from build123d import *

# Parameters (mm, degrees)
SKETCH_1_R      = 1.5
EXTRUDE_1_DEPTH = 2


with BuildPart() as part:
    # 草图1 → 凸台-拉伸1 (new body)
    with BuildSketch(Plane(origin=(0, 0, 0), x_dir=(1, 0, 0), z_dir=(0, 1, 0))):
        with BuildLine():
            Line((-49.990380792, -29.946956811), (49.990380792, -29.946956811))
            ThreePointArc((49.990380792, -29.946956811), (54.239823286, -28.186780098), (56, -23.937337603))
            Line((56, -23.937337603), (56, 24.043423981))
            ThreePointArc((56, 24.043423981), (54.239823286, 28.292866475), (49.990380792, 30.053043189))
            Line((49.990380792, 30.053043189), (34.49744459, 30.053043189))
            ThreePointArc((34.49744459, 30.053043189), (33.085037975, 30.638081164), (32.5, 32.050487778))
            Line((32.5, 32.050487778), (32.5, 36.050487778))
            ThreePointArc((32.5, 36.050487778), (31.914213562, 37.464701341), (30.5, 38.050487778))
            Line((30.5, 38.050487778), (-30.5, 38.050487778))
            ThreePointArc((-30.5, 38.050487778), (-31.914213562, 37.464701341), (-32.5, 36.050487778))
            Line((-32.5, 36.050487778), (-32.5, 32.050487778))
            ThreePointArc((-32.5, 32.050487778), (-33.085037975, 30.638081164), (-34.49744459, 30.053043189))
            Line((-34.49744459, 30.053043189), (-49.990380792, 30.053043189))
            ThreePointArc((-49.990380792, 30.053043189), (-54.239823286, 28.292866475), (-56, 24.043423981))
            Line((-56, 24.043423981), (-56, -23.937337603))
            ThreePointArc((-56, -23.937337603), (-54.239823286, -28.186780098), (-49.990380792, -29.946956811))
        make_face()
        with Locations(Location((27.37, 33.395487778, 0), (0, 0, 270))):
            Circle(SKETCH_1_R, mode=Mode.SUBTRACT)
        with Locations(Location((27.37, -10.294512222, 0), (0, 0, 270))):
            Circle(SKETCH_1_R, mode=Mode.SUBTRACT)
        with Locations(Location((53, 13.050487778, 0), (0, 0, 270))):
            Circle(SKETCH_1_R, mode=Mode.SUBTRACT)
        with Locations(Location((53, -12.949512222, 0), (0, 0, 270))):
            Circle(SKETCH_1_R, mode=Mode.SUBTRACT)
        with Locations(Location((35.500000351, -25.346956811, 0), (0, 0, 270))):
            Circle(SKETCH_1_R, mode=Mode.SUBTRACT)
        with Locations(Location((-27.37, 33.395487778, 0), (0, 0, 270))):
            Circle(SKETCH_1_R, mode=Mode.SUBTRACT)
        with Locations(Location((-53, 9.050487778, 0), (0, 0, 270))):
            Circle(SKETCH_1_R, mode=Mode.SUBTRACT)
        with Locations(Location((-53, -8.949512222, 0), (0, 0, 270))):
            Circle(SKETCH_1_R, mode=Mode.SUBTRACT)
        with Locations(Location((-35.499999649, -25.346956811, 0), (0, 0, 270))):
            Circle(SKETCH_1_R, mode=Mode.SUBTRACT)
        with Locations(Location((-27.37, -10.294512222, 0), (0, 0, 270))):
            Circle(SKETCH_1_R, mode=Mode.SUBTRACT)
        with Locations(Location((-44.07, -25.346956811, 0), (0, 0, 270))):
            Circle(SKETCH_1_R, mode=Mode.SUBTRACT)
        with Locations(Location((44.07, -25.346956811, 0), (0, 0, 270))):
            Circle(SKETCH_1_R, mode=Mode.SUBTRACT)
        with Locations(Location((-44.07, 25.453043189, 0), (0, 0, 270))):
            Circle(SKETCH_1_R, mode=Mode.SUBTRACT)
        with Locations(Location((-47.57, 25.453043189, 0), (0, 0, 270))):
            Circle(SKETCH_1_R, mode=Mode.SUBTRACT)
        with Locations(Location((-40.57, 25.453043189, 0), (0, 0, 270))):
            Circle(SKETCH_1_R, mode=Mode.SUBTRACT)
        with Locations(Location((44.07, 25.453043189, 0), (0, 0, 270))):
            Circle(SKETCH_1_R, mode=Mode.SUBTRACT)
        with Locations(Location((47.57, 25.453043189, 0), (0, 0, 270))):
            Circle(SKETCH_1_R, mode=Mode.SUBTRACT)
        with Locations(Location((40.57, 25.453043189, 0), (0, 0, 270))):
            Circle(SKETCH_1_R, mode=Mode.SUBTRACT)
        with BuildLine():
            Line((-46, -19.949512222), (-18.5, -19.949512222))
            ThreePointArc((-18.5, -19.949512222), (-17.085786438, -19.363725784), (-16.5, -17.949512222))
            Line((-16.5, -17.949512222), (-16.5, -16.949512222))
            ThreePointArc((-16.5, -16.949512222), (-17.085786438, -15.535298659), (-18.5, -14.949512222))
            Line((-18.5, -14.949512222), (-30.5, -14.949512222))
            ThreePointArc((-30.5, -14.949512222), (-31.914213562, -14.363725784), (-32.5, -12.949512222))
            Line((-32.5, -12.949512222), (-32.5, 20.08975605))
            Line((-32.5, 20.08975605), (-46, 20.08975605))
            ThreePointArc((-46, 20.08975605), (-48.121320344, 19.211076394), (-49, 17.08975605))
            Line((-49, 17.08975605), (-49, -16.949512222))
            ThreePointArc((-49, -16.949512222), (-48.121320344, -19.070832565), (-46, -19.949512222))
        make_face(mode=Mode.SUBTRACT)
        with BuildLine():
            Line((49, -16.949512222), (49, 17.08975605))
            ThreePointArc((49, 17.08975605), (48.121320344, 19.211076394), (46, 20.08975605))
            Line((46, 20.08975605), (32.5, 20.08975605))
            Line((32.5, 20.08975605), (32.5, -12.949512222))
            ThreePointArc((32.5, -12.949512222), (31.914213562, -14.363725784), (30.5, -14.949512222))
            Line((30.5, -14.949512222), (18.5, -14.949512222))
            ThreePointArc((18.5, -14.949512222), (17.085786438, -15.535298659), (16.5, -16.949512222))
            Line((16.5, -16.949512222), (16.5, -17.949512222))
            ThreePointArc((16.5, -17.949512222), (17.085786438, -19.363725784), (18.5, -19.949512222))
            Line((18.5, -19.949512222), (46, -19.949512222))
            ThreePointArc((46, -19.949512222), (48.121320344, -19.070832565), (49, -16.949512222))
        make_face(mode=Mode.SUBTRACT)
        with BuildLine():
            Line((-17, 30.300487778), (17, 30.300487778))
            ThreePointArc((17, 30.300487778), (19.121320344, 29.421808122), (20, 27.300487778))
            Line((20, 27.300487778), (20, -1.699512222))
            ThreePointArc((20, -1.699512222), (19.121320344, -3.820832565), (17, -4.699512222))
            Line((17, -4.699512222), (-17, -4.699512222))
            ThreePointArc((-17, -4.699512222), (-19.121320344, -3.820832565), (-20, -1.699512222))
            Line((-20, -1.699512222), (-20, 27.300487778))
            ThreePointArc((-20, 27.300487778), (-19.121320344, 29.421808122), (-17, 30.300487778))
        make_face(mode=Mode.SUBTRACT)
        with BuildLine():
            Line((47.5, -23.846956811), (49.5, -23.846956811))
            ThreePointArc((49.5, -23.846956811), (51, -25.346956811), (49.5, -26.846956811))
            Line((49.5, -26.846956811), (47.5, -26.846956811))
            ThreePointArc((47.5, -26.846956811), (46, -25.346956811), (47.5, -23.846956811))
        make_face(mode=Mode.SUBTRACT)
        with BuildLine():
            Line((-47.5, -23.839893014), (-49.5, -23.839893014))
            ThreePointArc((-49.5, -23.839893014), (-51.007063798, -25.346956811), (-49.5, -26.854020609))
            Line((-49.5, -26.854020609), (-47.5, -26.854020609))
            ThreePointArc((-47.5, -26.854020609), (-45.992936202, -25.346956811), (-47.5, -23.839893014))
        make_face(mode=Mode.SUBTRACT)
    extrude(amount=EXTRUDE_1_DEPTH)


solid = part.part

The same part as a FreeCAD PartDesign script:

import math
import FreeCAD as App
import Part
import Sketcher

V = App.Vector

doc = App.newDocument("Part")
body = doc.addObject("PartDesign::Body", "Body")

# Sketch on XZ plane
sketch1 = body.newObject("Sketcher::SketchObject", "Sketch")
sketch1.AttachmentSupport = (doc.getObject("XZ_Plane"), [""])
sketch1.MapMode = "FlatFace"
sketch1.addGeometry(Part.LineSegment(V(-50, 29.9, 0), V(50, 29.9, 0)), False)
sketch1.addGeometry(Part.ArcOfCircle(Part.Circle(V(50, 23.9, 0), V(0, 0, 1), 6), math.radians(0), math.radians(90)), False)
sketch1.addGeometry(Part.LineSegment(V(56, 23.9, 0), V(56, -24, 0)), False)
sketch1.addGeometry(Part.ArcOfCircle(Part.Circle(V(50, -24, 0), V(0, 0, 1), 6), math.radians(-90), math.radians(0)), False)
sketch1.addGeometry(Part.LineSegment(V(50, -30.1, 0), V(34.5, -30.1, 0)), False)
sketch1.addGeometry(Part.ArcOfCircle(Part.Circle(V(34.5, -32.1, 0), V(0, 0, 1), 2), math.radians(90), math.radians(180)), False)
sketch1.addGeometry(Part.LineSegment(V(32.5, -32.1, 0), V(32.5, -36.1, 0)), False)
sketch1.addGeometry(Part.ArcOfCircle(Part.Circle(V(30.5, -36.1, 0), V(0, 0, 1), 2), math.radians(-90), math.radians(0)), False)
sketch1.addGeometry(Part.LineSegment(V(30.5, -38.1, 0), V(-30.5, -38.1, 0)), False)
sketch1.addGeometry(Part.ArcOfCircle(Part.Circle(V(-30.5, -36.1, 0), V(0, 0, 1), 2), math.radians(180), math.radians(270)), False)
sketch1.addGeometry(Part.LineSegment(V(-32.5, -36.1, 0), V(-32.5, -32.1, 0)), False)
sketch1.addGeometry(Part.ArcOfCircle(Part.Circle(V(-34.5, -32.1, 0), V(0, 0, 1), 2), math.radians(0), math.radians(90)), False)
sketch1.addGeometry(Part.LineSegment(V(-34.5, -30.1, 0), V(-50, -30.1, 0)), False)
sketch1.addGeometry(Part.ArcOfCircle(Part.Circle(V(-50, -24, 0), V(0, 0, 1), 6), math.radians(-180), math.radians(-90)), False)
sketch1.addGeometry(Part.LineSegment(V(-56, -24, 0), V(-56, 23.9, 0)), False)
sketch1.addGeometry(Part.ArcOfCircle(Part.Circle(V(-50, 23.9, 0), V(0, 0, 1), 6), math.radians(90), math.radians(180)), False)
sketch1.addGeometry(Part.LineSegment(V(-49.5, 23.8, 0), V(-47.5, 23.8, 0)), False)
sketch1.addGeometry(Part.ArcOfCircle(Part.Circle(V(-47.5, 25.3, 0), V(0, 0, 1), 1.5), math.radians(-90), math.radians(90)), False)
sketch1.addGeometry(Part.LineSegment(V(-47.5, 26.9, 0), V(-49.5, 26.9, 0)), False)
sketch1.addGeometry(Part.ArcOfCircle(Part.Circle(V(-49.5, 25.3, 0), V(0, 0, 1), 1.5), math.radians(90), math.radians(270)), False)
sketch1.addGeometry(Part.Circle(V(-44.1, 25.3, 0), V(0, 0, 1), 1.5), False)
sketch1.addGeometry(Part.Circle(V(-35.5, 25.3, 0), V(0, 0, 1), 1.5), False)
sketch1.addGeometry(Part.Circle(V(-53, 8.9, 0), V(0, 0, 1), 1.5), False)
sketch1.addGeometry(Part.Circle(V(-27.4, 10.3, 0), V(0, 0, 1), 1.5), False)
sketch1.addGeometry(Part.LineSegment(V(-18.5, 19.9, 0), V(-46, 19.9, 0)), False)
sketch1.addGeometry(Part.ArcOfCircle(Part.Circle(V(-46, 16.9, 0), V(0, 0, 1), 3), math.radians(90), math.radians(180)), False)
sketch1.addGeometry(Part.LineSegment(V(-49, 16.9, 0), V(-49, -17.1, 0)), False)
sketch1.addGeometry(Part.ArcOfCircle(Part.Circle(V(-46, -17.1, 0), V(0, 0, 1), 3), math.radians(180), math.radians(270)), False)
sketch1.addGeometry(Part.LineSegment(V(-46, -20.1, 0), V(-32.5, -20.1, 0)), False)
sketch1.addGeometry(Part.LineSegment(V(-32.5, -20.1, 0), V(-32.5, 12.9, 0)), False)
sketch1.addGeometry(Part.ArcOfCircle(Part.Circle(V(-30.5, 12.9, 0), V(0, 0, 1), 2), math.radians(90), math.radians(180)), False)
sketch1.addGeometry(Part.LineSegment(V(-30.5, 14.9, 0), V(-18.5, 14.9, 0)), False)
sketch1.addGeometry(Part.ArcOfCircle(Part.Circle(V(-18.5, 16.9, 0), V(0, 0, 1), 2), math.radians(-90), math.radians(0)), False)
sketch1.addGeometry(Part.LineSegment(V(-16.5, 16.9, 0), V(-16.5, 17.9, 0)), False)
sketch1.addGeometry(Part.ArcOfCircle(Part.Circle(V(-18.5, 17.9, 0), V(0, 0, 1), 2), math.radians(0), math.radians(90)), False)
sketch1.addGeometry(Part.Circle(V(35.5, 25.3, 0), V(0, 0, 1), 1.5), False)
sketch1.addGeometry(Part.Circle(V(44.1, 25.3, 0), V(0, 0, 1), 1.5), False)
sketch1.addGeometry(Part.ArcOfCircle(Part.Circle(V(47.5, 25.3, 0), V(0, 0, 1), 1.5), math.radians(90), math.radians(270)), False)
sketch1.addGeometry(Part.LineSegment(V(47.5, 23.8, 0), V(49.5, 23.8, 0)), False)
sketch1.addGeometry(Part.ArcOfCircle(Part.Circle(V(49.5, 25.3, 0), V(0, 0, 1), 1.5), math.radians(-90), math.radians(90)), False)
sketch1.addGeometry(Part.LineSegment(V(49.5, 26.8, 0), V(47.5, 26.8, 0)), False)
sketch1.addGeometry(Part.Circle(V(53, 12.9, 0), V(0, 0, 1), 1.5), False)
sketch1.addGeometry(Part.Circle(V(27.4, 10.3, 0), V(0, 0, 1), 1.5), False)
sketch1.addGeometry(Part.LineSegment(V(49, -17.1, 0), V(49, 16.9, 0)), False)
sketch1.addGeometry(Part.ArcOfCircle(Part.Circle(V(46, 16.9, 0), V(0, 0, 1), 3), math.radians(0), math.radians(90)), False)
sketch1.addGeometry(Part.LineSegment(V(46, 19.9, 0), V(18.5, 19.9, 0)), False)
sketch1.addGeometry(Part.ArcOfCircle(Part.Circle(V(18.5, 17.9, 0), V(0, 0, 1), 2), math.radians(90), math.radians(180)), False)
sketch1.addGeometry(Part.LineSegment(V(16.5, 17.9, 0), V(16.5, 16.9, 0)), False)
sketch1.addGeometry(Part.ArcOfCircle(Part.Circle(V(18.5, 16.9, 0), V(0, 0, 1), 2), math.radians(180), math.radians(270)), False)
sketch1.addGeometry(Part.LineSegment(V(18.5, 14.9, 0), V(30.5, 14.9, 0)), False)
sketch1.addGeometry(Part.ArcOfCircle(Part.Circle(V(30.5, 12.9, 0), V(0, 0, 1), 2), math.radians(0), math.radians(90)), False)
sketch1.addGeometry(Part.LineSegment(V(32.5, 12.9, 0), V(32.5, -20.1, 0)), False)
sketch1.addGeometry(Part.LineSegment(V(32.5, -20.1, 0), V(46, -20.1, 0)), False)
sketch1.addGeometry(Part.ArcOfCircle(Part.Circle(V(46, -17.1, 0), V(0, 0, 1), 3), math.radians(-90), math.radians(0)), False)
sketch1.addGeometry(Part.Circle(V(-53, -9.1, 0), V(0, 0, 1), 1.5), False)
sketch1.addGeometry(Part.Circle(V(-47.6, -25.5, 0), V(0, 0, 1), 1.5), False)
sketch1.addGeometry(Part.Circle(V(-44.1, -25.5, 0), V(0, 0, 1), 1.5), False)
sketch1.addGeometry(Part.Circle(V(-40.6, -25.5, 0), V(0, 0, 1), 1.5), False)
sketch1.addGeometry(Part.Circle(V(-27.4, -33.4, 0), V(0, 0, 1), 1.5), False)
sketch1.addGeometry(Part.ArcOfCircle(Part.Circle(V(-17, -27.3, 0), V(0, 0, 1), 3), math.radians(180), math.radians(270)), False)
sketch1.addGeometry(Part.LineSegment(V(-17, -30.3, 0), V(17, -30.3, 0)), False)
sketch1.addGeometry(Part.ArcOfCircle(Part.Circle(V(17, -27.3, 0), V(0, 0, 1), 3), math.radians(-90), math.radians(0)), False)
sketch1.addGeometry(Part.LineSegment(V(20, -27.3, 0), V(20, 1.7, 0)), False)
sketch1.addGeometry(Part.ArcOfCircle(Part.Circle(V(17, 1.7, 0), V(0, 0, 1), 3), math.radians(0), math.radians(90)), False)
sketch1.addGeometry(Part.LineSegment(V(17, 4.7, 0), V(-17, 4.7, 0)), False)
sketch1.addGeometry(Part.ArcOfCircle(Part.Circle(V(-17, 1.7, 0), V(0, 0, 1), 3), math.radians(90), math.radians(180)), False)
sketch1.addGeometry(Part.LineSegment(V(-20, 1.7, 0), V(-20, -27.3, 0)), False)
sketch1.addGeometry(Part.Circle(V(53, -13.1, 0), V(0, 0, 1), 1.5), False)
sketch1.addGeometry(Part.Circle(V(40.6, -25.5, 0), V(0, 0, 1), 1.5), False)
sketch1.addGeometry(Part.Circle(V(44.1, -25.5, 0), V(0, 0, 1), 1.5), False)
sketch1.addGeometry(Part.Circle(V(47.6, -25.5, 0), V(0, 0, 1), 1.5), False)
sketch1.addGeometry(Part.Circle(V(27.4, -33.4, 0), V(0, 0, 1), 1.5), False)
sketch1.addConstraint(Sketcher.Constraint("Tangent", 0, 2, 1, 2))
sketch1.addConstraint(Sketcher.Constraint("Tangent", 1, 1, 2, 1))
sketch1.addConstraint(Sketcher.Constraint("Tangent", 2, 2, 3, 2))
sketch1.addConstraint(Sketcher.Constraint("Tangent", 3, 1, 4, 1))
sketch1.addConstraint(Sketcher.Constraint("Tangent", 4, 2, 5, 1))
sketch1.addConstraint(Sketcher.Constraint("Tangent", 5, 2, 6, 1))
sketch1.addConstraint(Sketcher.Constraint("Tangent", 6, 2, 7, 2))
sketch1.addConstraint(Sketcher.Constraint("Tangent", 7, 1, 8, 1))
sketch1.addConstraint(Sketcher.Constraint("Tangent", 8, 2, 9, 2))
sketch1.addConstraint(Sketcher.Constraint("Tangent", 9, 1, 10, 1))
sketch1.addConstraint(Sketcher.Constraint("Tangent", 10, 2, 11, 1))
sketch1.addConstraint(Sketcher.Constraint("Tangent", 11, 2, 12, 1))
sketch1.addConstraint(Sketcher.Constraint("Tangent", 12, 2, 13, 2))
sketch1.addConstraint(Sketcher.Constraint("Tangent", 13, 1, 14, 1))
sketch1.addConstraint(Sketcher.Constraint("Tangent", 14, 2, 15, 2))
sketch1.addConstraint(Sketcher.Constraint("Tangent", 15, 1, 0, 1))
sketch1.addConstraint(Sketcher.Constraint("Tangent", 16, 2, 17, 1))
sketch1.addConstraint(Sketcher.Constraint("Tangent", 17, 2, 18, 1))
sketch1.addConstraint(Sketcher.Constraint("Tangent", 18, 2, 19, 1))
sketch1.addConstraint(Sketcher.Constraint("Tangent", 19, 2, 16, 1))
sketch1.addConstraint(Sketcher.Constraint("Tangent", 24, 2, 25, 1))
sketch1.addConstraint(Sketcher.Constraint("Tangent", 25, 2, 26, 1))
sketch1.addConstraint(Sketcher.Constraint("Tangent", 26, 2, 27, 1))
sketch1.addConstraint(Sketcher.Constraint("Tangent", 27, 2, 28, 1))
sketch1.addConstraint(Sketcher.Constraint("Coincident", 28, 2, 29, 1))
sketch1.addConstraint(Sketcher.Constraint("Tangent", 29, 2, 30, 2))
sketch1.addConstraint(Sketcher.Constraint("Tangent", 30, 1, 31, 1))
sketch1.addConstraint(Sketcher.Constraint("Tangent", 31, 2, 32, 1))
sketch1.addConstraint(Sketcher.Constraint("Tangent", 32, 2, 33, 1))
sketch1.addConstraint(Sketcher.Constraint("Tangent", 33, 2, 34, 1))
sketch1.addConstraint(Sketcher.Constraint("Tangent", 34, 2, 24, 1))
sketch1.addConstraint(Sketcher.Constraint("Tangent", 37, 2, 38, 1))
sketch1.addConstraint(Sketcher.Constraint("Tangent", 38, 2, 39, 1))
sketch1.addConstraint(Sketcher.Constraint("Tangent", 39, 2, 40, 1))
sketch1.addConstraint(Sketcher.Constraint("Tangent", 40, 2, 37, 1))
sketch1.addConstraint(Sketcher.Constraint("Tangent", 43, 2, 44, 1))
sketch1.addConstraint(Sketcher.Constraint("Tangent", 44, 2, 45, 1))
sketch1.addConstraint(Sketcher.Constraint("Tangent", 45, 2, 46, 1))
sketch1.addConstraint(Sketcher.Constraint("Tangent", 46, 2, 47, 1))
sketch1.addConstraint(Sketcher.Constraint("Tangent", 47, 2, 48, 1))
sketch1.addConstraint(Sketcher.Constraint("Tangent", 48, 2, 49, 1))
sketch1.addConstraint(Sketcher.Constraint("Tangent", 49, 2, 50, 2))
sketch1.addConstraint(Sketcher.Constraint("Tangent", 50, 1, 51, 1))
sketch1.addConstraint(Sketcher.Constraint("Coincident", 51, 2, 52, 1))
sketch1.addConstraint(Sketcher.Constraint("Tangent", 52, 2, 53, 1))
sketch1.addConstraint(Sketcher.Constraint("Tangent", 53, 2, 43, 1))
sketch1.addConstraint(Sketcher.Constraint("Tangent", 59, 2, 60, 1))
sketch1.addConstraint(Sketcher.Constraint("Tangent", 60, 2, 61, 1))
sketch1.addConstraint(Sketcher.Constraint("Tangent", 61, 2, 62, 1))
sketch1.addConstraint(Sketcher.Constraint("Tangent", 62, 2, 63, 1))
sketch1.addConstraint(Sketcher.Constraint("Tangent", 63, 2, 64, 1))
sketch1.addConstraint(Sketcher.Constraint("Tangent", 64, 2, 65, 1))
sketch1.addConstraint(Sketcher.Constraint("Tangent", 65, 2, 66, 1))
sketch1.addConstraint(Sketcher.Constraint("Tangent", 66, 2, 59, 1))
sketch1.addConstraint(Sketcher.Constraint("Horizontal", 0))
sketch1.addConstraint(Sketcher.Constraint("Vertical", 2))
sketch1.addConstraint(Sketcher.Constraint("Horizontal", 4))
sketch1.addConstraint(Sketcher.Constraint("Vertical", 6))
sketch1.addConstraint(Sketcher.Constraint("Horizontal", 8))
sketch1.addConstraint(Sketcher.Constraint("Vertical", 10))
sketch1.addConstraint(Sketcher.Constraint("Horizontal", 12))
sketch1.addConstraint(Sketcher.Constraint("Vertical", 14))
sketch1.addConstraint(Sketcher.Constraint("Horizontal", 16))
sketch1.addConstraint(Sketcher.Constraint("Horizontal", 18))
sketch1.addConstraint(Sketcher.Constraint("Horizontal", 24))
sketch1.addConstraint(Sketcher.Constraint("Vertical", 26))
sketch1.addConstraint(Sketcher.Constraint("Horizontal", 28))
sketch1.addConstraint(Sketcher.Constraint("Vertical", 29))
sketch1.addConstraint(Sketcher.Constraint("Horizontal", 31))
sketch1.addConstraint(Sketcher.Constraint("Vertical", 33))
sketch1.addConstraint(Sketcher.Constraint("Horizontal", 38))
sketch1.addConstraint(Sketcher.Constraint("Horizontal", 40))
sketch1.addConstraint(Sketcher.Constraint("Vertical", 43))
sketch1.addConstraint(Sketcher.Constraint("Horizontal", 45))
sketch1.addConstraint(Sketcher.Constraint("Vertical", 47))
sketch1.addConstraint(Sketcher.Constraint("Horizontal", 49))
sketch1.addConstraint(Sketcher.Constraint("Vertical", 51))
sketch1.addConstraint(Sketcher.Constraint("Horizontal", 52))
sketch1.addConstraint(Sketcher.Constraint("Horizontal", 60))
sketch1.addConstraint(Sketcher.Constraint("Vertical", 62))
sketch1.addConstraint(Sketcher.Constraint("Horizontal", 64))
sketch1.addConstraint(Sketcher.Constraint("Vertical", 66))
sketch1.addConstraint(Sketcher.Constraint("Equal", 1, 3))
sketch1.addConstraint(Sketcher.Constraint("Equal", 7, 9))
sketch1.addConstraint(Sketcher.Constraint("Equal", 5, 11))
sketch1.addConstraint(Sketcher.Constraint("Equal", 3, 13))
sketch1.addConstraint(Sketcher.Constraint("Equal", 13, 15))
sketch1.addConstraint(Sketcher.Constraint("Equal", 20, 21))
sketch1.addConstraint(Sketcher.Constraint("Equal", 21, 22))
sketch1.addConstraint(Sketcher.Constraint("Equal", 22, 23))
sketch1.addConstraint(Sketcher.Constraint("Equal", 25, 27))
sketch1.addConstraint(Sketcher.Constraint("Equal", 9, 30))
sketch1.addConstraint(Sketcher.Constraint("Equal", 30, 32))
sketch1.addConstraint(Sketcher.Constraint("Equal", 32, 34))
sketch1.addConstraint(Sketcher.Constraint("Equal", 23, 35))
sketch1.addConstraint(Sketcher.Constraint("Equal", 35, 36))
sketch1.addConstraint(Sketcher.Constraint("Equal", 36, 37))
sketch1.addConstraint(Sketcher.Constraint("Equal", 39, 41))
sketch1.addConstraint(Sketcher.Constraint("Equal", 41, 42))
sketch1.addConstraint(Sketcher.Constraint("Equal", 27, 44))
sketch1.addConstraint(Sketcher.Constraint("Equal", 34, 46))
sketch1.addConstraint(Sketcher.Constraint("Equal", 46, 48))
sketch1.addConstraint(Sketcher.Constraint("Equal", 48, 50))
sketch1.addConstraint(Sketcher.Constraint("Equal", 44, 53))
sketch1.addConstraint(Sketcher.Constraint("Equal", 42, 54))
sketch1.addConstraint(Sketcher.Constraint("Equal", 54, 55))
sketch1.addConstraint(Sketcher.Constraint("Equal", 55, 56))
sketch1.addConstraint(Sketcher.Constraint("Equal", 56, 57))
sketch1.addConstraint(Sketcher.Constraint("Equal", 57, 58))
sketch1.addConstraint(Sketcher.Constraint("Equal", 53, 59))
sketch1.addConstraint(Sketcher.Constraint("Equal", 59, 61))
sketch1.addConstraint(Sketcher.Constraint("Equal", 61, 63))
sketch1.addConstraint(Sketcher.Constraint("Equal", 63, 65))
sketch1.addConstraint(Sketcher.Constraint("Equal", 58, 67))
sketch1.addConstraint(Sketcher.Constraint("Equal", 67, 68))
sketch1.addConstraint(Sketcher.Constraint("Equal", 68, 69))
sketch1.addConstraint(Sketcher.Constraint("Equal", 69, 70))
sketch1.addConstraint(Sketcher.Constraint("Equal", 70, 71))
sketch1.addConstraint(Sketcher.Constraint("Symmetric", 5, 3, 11, 3, -2))
sketch1.addConstraint(Sketcher.Constraint("Symmetric", 21, 3, 35, 3, -2))
sketch1.addConstraint(Sketcher.Constraint("Symmetric", 20, 3, 36, 3, -2))
sketch1.addConstraint(Sketcher.Constraint("Symmetric", 17, 3, 37, 3, -2))
sketch1.addConstraint(Sketcher.Constraint("Symmetric", 23, 3, 42, 3, -2))
sketch1.addConstraint(Sketcher.Constraint("Symmetric", 25, 3, 44, 3, -2))
sketch1.addConstraint(Sketcher.Constraint("Symmetric", 32, 3, 48, 3, -2))
sketch1.addConstraint(Sketcher.Constraint("Symmetric", 57, 3, 68, 3, -2))
sketch1.addConstraint(Sketcher.Constraint("Symmetric", 56, 3, 69, 3, -2))
sketch1.addConstraint(Sketcher.Constraint("Symmetric", 55, 3, 70, 3, -2))
sketch1.addConstraint(Sketcher.Constraint("Symmetric", 58, 3, 71, 3, -2))
sketch1.addConstraint(Sketcher.Constraint("Symmetric", 28, 2, 51, 2, -2))
sketch1.addConstraint(Sketcher.Constraint("Horizontal", 19, 3, 20, 3))
sketch1.addConstraint(Sketcher.Constraint("Horizontal", 20, 3, 21, 3))
sketch1.addConstraint(Sketcher.Constraint("Horizontal", 25, 3, 32, 3))
sketch1.addConstraint(Sketcher.Constraint("Horizontal", 30, 3, 41, 3))
sketch1.addConstraint(Sketcher.Constraint("Horizontal", 55, 3, 56, 3))
sketch1.addConstraint(Sketcher.Constraint("Horizontal", 56, 3, 57, 3))
sketch1.addConstraint(Sketcher.Constraint("Vertical", 9, 3, 30, 3))
sketch1.addConstraint(Sketcher.Constraint("Vertical", 22, 3, 54, 3))
sketch1.addConstraint(Sketcher.Constraint("Vertical", 20, 3, 56, 3))
sketch1.addConstraint(Sketcher.Constraint("Vertical", 23, 3, 58, 3))
sketch1.addConstraint(Sketcher.Constraint("Vertical", 41, 3, 67, 3))
sketch1.addConstraint(Sketcher.Constraint("Equal", 4, 12))
sketch1.addConstraint(Sketcher.Constraint("Equal", 18, 38))
sketch1.addConstraint(Sketcher.Constraint("Diameter", 20, 3.0))
sketch1.addConstraint(Sketcher.Constraint("Radius", 7, 2.0))
sketch1.addConstraint(Sketcher.Constraint("Radius", 25, 3.0))
sketch1.addConstraint(Sketcher.Constraint("DistanceX", 8, 2, 8, 1, 61.0))
sketch1.addConstraint(Sketcher.Constraint("DistanceX", 16, 1, 16, 2, 2.0))
sketch1.addConstraint(Sketcher.Constraint("DistanceX", 31, 1, 31, 2, 12.0))
sketch1.addConstraint(Sketcher.Constraint("DistanceX", 60, 1, 60, 2, 34.0))
sketch1.addConstraint(Sketcher.Constraint("DistanceY", 6, 2, 6, 1, 4.0))
sketch1.addConstraint(Sketcher.Constraint("DistanceY", 62, 1, 62, 2, 29.0))
sketch1.addConstraint(Sketcher.Constraint("DistanceX", 24, 2, 24, 1, 27.5))
sketch1.addConstraint(Sketcher.Constraint("DistanceX", 22, 3, -1, 1, 53.0))
sketch1.addConstraint(Sketcher.Constraint("DistanceX", -1, 1, 41, 3, 53.0))
sketch1.addConstraint(Sketcher.Constraint("DistanceX", 59, 3, -1, 1, 17.0))
sketch1.addConstraint(Sketcher.Constraint("DistanceX", -1, 1, 1, 1, 56.0))
sketch1.addConstraint(Sketcher.Constraint("DistanceX", 17, 3, -1, 1, 47.5))
sketch1.addConstraint(Sketcher.Constraint("DistanceX", 21, 3, -1, 1, 35.5))
sketch1.addConstraint(Sketcher.Constraint("DistanceX", 20, 3, -1, 1, 44.07))
sketch1.addConstraint(Sketcher.Constraint("DistanceX", 23, 3, -1, 1, 27.37))
sketch1.addConstraint(Sketcher.Constraint("DistanceX", 55, 3, -1, 1, 47.57))
sketch1.addConstraint(Sketcher.Constraint("DistanceX", 57, 3, -1, 1, 40.57))
sketch1.addConstraint(Sketcher.Constraint("Radius", 1, 6.009619))
sketch1.addConstraint(Sketcher.Constraint("Radius", 5, 1.997445))
sketch1.addConstraint(Sketcher.Constraint("Radius", 17, 1.507064))
sketch1.addConstraint(Sketcher.Constraint("DistanceY", 2, 2, 2, 1, 47.980762))
sketch1.addConstraint(Sketcher.Constraint("DistanceY", 26, 2, 26, 1, 34.039268))
sketch1.addConstraint(Sketcher.Constraint("DistanceY", -1, 1, 17, 2, 26.854021))
sketch1.addConstraint(Sketcher.Constraint("DistanceY", -1, 1, 1, 3, 23.937338))
sketch1.addConstraint(Sketcher.Constraint("DistanceY", -1, 1, 22, 3, 8.949512))
sketch1.addConstraint(Sketcher.Constraint("DistanceY", -1, 1, 23, 3, 10.294512))
sketch1.addConstraint(Sketcher.Constraint("DistanceY", -1, 1, 25, 3, 16.949512))
sketch1.addConstraint(Sketcher.Constraint("DistanceY", 54, 3, -1, 1, 9.050488))
sketch1.addConstraint(Sketcher.Constraint("DistanceY", 55, 3, -1, 1, 25.453043))
sketch1.addConstraint(Sketcher.Constraint("DistanceY", 58, 3, -1, 1, 33.395488))
sketch1.addConstraint(Sketcher.Constraint("DistanceY", 59, 3, -1, 1, 27.300488))
sketch1.addConstraint(Sketcher.Constraint("DistanceY", 67, 3, -1, 1, 13.050488))
pad1 = body.newObject("PartDesign::Pad", "Pad")
pad1.Profile = sketch1
pad1.Length = 2
pad1.Reversed = True

doc.recompute()
